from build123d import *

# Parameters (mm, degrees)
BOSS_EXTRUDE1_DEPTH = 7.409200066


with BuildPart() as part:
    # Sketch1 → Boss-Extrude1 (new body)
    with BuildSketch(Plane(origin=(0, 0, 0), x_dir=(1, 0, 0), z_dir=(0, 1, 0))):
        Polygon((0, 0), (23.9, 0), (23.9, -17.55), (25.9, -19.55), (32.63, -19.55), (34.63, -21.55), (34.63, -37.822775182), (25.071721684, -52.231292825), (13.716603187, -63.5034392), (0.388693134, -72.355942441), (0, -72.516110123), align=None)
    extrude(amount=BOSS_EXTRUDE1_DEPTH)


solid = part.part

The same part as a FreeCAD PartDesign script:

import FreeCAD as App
import Part
import Sketcher

V = App.Vector
Q = App.Units.Quantity


def add_polygon(sketch, points):
    """Adds a closed chain of lines whose ends are joined by coincident constraints."""
    first, n = sketch.GeometryCount, len(points)
    for a, b in zip(points, points[1:] + points[:1]):
        sketch.addGeometry(Part.LineSegment(App.Vector(*a, 0), App.Vector(*b, 0)), False)
    for i in range(n):
        sketch.addConstraint(Sketcher.Constraint("Coincident", first + i, 2, first + (i + 1) % n, 1))

doc = App.newDocument("Part")
body = doc.addObject("PartDesign::Body", "Body")

# Sketch on XZ plane
sketch1 = body.newObject("Sketcher::SketchObject", "Sketch")
sketch1.AttachmentSupport = (doc.getObject("XZ_Plane"), [""])
sketch1.MapMode = "FlatFace"
add_polygon(sketch1, [(23.9, 0), (0, 0), (0, 72.51611), (0.388693, 72.355942), (13.716603, 63.503439), (25.071722, 52.231293), (34.63, 37.822775), (34.63, 21.55), (32.63, 19.55), (25.9, 19.55), (23.9, 17.55)])  # lines 0-10
sketch1.addConstraint([
    Sketcher.Constraint("Horizontal", 0),
    Sketcher.Constraint("Vertical", 1),
    Sketcher.Constraint("Vertical", 6),
    Sketcher.Constraint("Horizontal", 8),
    Sketcher.Constraint("Vertical", 10),
    Sketcher.Constraint("Coincident", 0, 2, -1, 1),
    Sketcher.Constraint("Parallel", 7, 9),
    Sketcher.Constraint("Equal", 3, 4),
    Sketcher.Constraint("Equal", 7, 9),
    Sketcher.Constraint("Angle", 7, Q("-135 deg")),
    Sketcher.Constraint("Distance", 3, Q("16 mm")),
    Sketcher.Constraint("DistanceX", 0, 2, 0, 1, Q("23.9 mm")),
    Sketcher.Constraint("DistanceX", 7, 2, 6, 2, Q("2 mm")),
    Sketcher.Constraint("DistanceX", 8, 2, 8, 1, Q("6.73 mm")),
    Sketcher.Constraint("DistanceY", 10, 2, 10, 1, Q("17.55 mm")),
    Sketcher.Constraint("Distance", 2, Q("0.4204 mm")),
    Sketcher.Constraint("DistanceY", 1, 1, 1, 2, Q("72.51611 mm")),
    Sketcher.Constraint("DistanceY", 6, 2, 6, 1, Q("16.272775 mm")),
    Sketcher.Constraint("DistanceY", -1, 1, 3, 2, Q("63.503439 mm")),
    Sketcher.Constraint("DistanceX", -1, 1, 4, 2, Q("25.071722 mm")),
    Sketcher.Constraint("DistanceX", 2, 2, 3, 2, Q("13.32791 mm")),
])
pad1 = body.newObject("PartDesign::Pad", "Pad")
pad1.Profile = sketch1
pad1.Length = 7.4092
pad1.Reversed = True

doc.recompute()
